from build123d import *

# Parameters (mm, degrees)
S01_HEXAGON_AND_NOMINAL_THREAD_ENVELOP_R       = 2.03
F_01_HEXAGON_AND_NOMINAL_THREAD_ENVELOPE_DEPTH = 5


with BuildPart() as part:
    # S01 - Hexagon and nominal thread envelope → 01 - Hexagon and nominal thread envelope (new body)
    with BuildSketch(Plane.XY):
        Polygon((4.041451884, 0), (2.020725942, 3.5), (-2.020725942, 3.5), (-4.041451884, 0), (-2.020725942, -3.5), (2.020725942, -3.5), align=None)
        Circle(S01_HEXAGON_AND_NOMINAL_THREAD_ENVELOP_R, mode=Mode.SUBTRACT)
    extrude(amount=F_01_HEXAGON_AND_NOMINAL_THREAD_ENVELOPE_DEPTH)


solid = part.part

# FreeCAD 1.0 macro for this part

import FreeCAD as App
import Part
import Sketcher
from FreeCAD import Vector
Q = App.Units.Quantity

doc = App.newDocument("Part")
body = doc.addObject("PartDesign::Body", "Body")

# Sketch on XY plane
sketch1 = body.newObject("Sketcher::SketchObject", "Sketch")
sketch1.AttachmentSupport = (doc.getObject("XY_Plane"), [""])
sketch1.MapMode = "FlatFace"
sketch1.addGeometry(Part.LineSegment(Vector(4, 0, 0), Vector(2, 3.5, 0)), False)
sketch1.addGeometry(Part.LineSegment(Vector(2, 3.5, 0), Vector(-2, 3.5, 0)), False)
sketch1.addGeometry(Part.LineSegment(Vector(-2, 3.5, 0), Vector(-4, 0, 0)), False)
sketch1.addGeometry(Part.LineSegment(Vector(-4, 0, 0), Vector(-2, -3.5, 0)), False)
sketch1.addGeometry(Part.LineSegment(Vector(-2, -3.5, 0), Vector(2, -3.5, 0)), False)
sketch1.addGeometry(Part.LineSegment(Vector(2, -3.5, 0), Vector(4, 0, 0)), False)
sketch1.addGeometry(Part.Circle(Vector(0, 0, 0), Vector(0, 0, 1), 2), False)
sketch1.addConstraint(Sketcher.Constraint("Coincident", 0, 2, 1, 1))
sketch1.addConstraint(Sketcher.Constraint("Coincident", 1, 2, 2, 1))
sketch1.addConstraint(Sketcher.Constraint("Coincident", 2, 2, 3, 1))
sketch1.addConstraint(Sketcher.Constraint("Coincident", 3, 2, 4, 1))
sketch1.addConstraint(Sketcher.Constraint("Coincident", 4, 2, 5, 1))
sketch1.addConstraint(Sketcher.Constraint("Coincident", 5, 2, 0, 1))
sketch1.addConstraint(Sketcher.Constraint("Horizontal", 1))
sketch1.addConstraint(Sketcher.Constraint("Horizontal", 4))
sketch1.addConstraint(Sketcher.Constraint("Coincident", 6, 3, -1, 1))
sketch1.addConstraint(Sketcher.Constraint("Symmetric", 0, 2, 3, 2, -1, 1))
sketch1.addConstraint(Sketcher.Constraint("Symmetric", 2, 2, 5, 2, -1, 1))
sketch1.addConstraint(Sketcher.Constraint("PointOnObject", 2, 2, -1))
sketch1.addConstraint(Sketcher.Constraint("Parallel", 2, 5))
sketch1.addConstraint(Sketcher.Constraint("Vertical", 1, 2, 3, 2))
sketch1.addConstraint(Sketcher.Constraint("Diameter", 6, Q("4.06 mm")))
sketch1.addConstraint(Sketcher.Constraint("Angle", 0, Q("120 deg")))
sketch1.addConstraint(Sketcher.Constraint("DistanceY", 3, 2, 1, 2, Q("7 mm")))
sketch1.addConstraint(Sketcher.Constraint("DistanceX", 1, 2, 1, 1, Q("4.041452 mm")))
pad1 = body.newObject("PartDesign::Pad", "Pad")
pad1.Profile = sketch1
pad1.Length = 5

doc.recompute()
